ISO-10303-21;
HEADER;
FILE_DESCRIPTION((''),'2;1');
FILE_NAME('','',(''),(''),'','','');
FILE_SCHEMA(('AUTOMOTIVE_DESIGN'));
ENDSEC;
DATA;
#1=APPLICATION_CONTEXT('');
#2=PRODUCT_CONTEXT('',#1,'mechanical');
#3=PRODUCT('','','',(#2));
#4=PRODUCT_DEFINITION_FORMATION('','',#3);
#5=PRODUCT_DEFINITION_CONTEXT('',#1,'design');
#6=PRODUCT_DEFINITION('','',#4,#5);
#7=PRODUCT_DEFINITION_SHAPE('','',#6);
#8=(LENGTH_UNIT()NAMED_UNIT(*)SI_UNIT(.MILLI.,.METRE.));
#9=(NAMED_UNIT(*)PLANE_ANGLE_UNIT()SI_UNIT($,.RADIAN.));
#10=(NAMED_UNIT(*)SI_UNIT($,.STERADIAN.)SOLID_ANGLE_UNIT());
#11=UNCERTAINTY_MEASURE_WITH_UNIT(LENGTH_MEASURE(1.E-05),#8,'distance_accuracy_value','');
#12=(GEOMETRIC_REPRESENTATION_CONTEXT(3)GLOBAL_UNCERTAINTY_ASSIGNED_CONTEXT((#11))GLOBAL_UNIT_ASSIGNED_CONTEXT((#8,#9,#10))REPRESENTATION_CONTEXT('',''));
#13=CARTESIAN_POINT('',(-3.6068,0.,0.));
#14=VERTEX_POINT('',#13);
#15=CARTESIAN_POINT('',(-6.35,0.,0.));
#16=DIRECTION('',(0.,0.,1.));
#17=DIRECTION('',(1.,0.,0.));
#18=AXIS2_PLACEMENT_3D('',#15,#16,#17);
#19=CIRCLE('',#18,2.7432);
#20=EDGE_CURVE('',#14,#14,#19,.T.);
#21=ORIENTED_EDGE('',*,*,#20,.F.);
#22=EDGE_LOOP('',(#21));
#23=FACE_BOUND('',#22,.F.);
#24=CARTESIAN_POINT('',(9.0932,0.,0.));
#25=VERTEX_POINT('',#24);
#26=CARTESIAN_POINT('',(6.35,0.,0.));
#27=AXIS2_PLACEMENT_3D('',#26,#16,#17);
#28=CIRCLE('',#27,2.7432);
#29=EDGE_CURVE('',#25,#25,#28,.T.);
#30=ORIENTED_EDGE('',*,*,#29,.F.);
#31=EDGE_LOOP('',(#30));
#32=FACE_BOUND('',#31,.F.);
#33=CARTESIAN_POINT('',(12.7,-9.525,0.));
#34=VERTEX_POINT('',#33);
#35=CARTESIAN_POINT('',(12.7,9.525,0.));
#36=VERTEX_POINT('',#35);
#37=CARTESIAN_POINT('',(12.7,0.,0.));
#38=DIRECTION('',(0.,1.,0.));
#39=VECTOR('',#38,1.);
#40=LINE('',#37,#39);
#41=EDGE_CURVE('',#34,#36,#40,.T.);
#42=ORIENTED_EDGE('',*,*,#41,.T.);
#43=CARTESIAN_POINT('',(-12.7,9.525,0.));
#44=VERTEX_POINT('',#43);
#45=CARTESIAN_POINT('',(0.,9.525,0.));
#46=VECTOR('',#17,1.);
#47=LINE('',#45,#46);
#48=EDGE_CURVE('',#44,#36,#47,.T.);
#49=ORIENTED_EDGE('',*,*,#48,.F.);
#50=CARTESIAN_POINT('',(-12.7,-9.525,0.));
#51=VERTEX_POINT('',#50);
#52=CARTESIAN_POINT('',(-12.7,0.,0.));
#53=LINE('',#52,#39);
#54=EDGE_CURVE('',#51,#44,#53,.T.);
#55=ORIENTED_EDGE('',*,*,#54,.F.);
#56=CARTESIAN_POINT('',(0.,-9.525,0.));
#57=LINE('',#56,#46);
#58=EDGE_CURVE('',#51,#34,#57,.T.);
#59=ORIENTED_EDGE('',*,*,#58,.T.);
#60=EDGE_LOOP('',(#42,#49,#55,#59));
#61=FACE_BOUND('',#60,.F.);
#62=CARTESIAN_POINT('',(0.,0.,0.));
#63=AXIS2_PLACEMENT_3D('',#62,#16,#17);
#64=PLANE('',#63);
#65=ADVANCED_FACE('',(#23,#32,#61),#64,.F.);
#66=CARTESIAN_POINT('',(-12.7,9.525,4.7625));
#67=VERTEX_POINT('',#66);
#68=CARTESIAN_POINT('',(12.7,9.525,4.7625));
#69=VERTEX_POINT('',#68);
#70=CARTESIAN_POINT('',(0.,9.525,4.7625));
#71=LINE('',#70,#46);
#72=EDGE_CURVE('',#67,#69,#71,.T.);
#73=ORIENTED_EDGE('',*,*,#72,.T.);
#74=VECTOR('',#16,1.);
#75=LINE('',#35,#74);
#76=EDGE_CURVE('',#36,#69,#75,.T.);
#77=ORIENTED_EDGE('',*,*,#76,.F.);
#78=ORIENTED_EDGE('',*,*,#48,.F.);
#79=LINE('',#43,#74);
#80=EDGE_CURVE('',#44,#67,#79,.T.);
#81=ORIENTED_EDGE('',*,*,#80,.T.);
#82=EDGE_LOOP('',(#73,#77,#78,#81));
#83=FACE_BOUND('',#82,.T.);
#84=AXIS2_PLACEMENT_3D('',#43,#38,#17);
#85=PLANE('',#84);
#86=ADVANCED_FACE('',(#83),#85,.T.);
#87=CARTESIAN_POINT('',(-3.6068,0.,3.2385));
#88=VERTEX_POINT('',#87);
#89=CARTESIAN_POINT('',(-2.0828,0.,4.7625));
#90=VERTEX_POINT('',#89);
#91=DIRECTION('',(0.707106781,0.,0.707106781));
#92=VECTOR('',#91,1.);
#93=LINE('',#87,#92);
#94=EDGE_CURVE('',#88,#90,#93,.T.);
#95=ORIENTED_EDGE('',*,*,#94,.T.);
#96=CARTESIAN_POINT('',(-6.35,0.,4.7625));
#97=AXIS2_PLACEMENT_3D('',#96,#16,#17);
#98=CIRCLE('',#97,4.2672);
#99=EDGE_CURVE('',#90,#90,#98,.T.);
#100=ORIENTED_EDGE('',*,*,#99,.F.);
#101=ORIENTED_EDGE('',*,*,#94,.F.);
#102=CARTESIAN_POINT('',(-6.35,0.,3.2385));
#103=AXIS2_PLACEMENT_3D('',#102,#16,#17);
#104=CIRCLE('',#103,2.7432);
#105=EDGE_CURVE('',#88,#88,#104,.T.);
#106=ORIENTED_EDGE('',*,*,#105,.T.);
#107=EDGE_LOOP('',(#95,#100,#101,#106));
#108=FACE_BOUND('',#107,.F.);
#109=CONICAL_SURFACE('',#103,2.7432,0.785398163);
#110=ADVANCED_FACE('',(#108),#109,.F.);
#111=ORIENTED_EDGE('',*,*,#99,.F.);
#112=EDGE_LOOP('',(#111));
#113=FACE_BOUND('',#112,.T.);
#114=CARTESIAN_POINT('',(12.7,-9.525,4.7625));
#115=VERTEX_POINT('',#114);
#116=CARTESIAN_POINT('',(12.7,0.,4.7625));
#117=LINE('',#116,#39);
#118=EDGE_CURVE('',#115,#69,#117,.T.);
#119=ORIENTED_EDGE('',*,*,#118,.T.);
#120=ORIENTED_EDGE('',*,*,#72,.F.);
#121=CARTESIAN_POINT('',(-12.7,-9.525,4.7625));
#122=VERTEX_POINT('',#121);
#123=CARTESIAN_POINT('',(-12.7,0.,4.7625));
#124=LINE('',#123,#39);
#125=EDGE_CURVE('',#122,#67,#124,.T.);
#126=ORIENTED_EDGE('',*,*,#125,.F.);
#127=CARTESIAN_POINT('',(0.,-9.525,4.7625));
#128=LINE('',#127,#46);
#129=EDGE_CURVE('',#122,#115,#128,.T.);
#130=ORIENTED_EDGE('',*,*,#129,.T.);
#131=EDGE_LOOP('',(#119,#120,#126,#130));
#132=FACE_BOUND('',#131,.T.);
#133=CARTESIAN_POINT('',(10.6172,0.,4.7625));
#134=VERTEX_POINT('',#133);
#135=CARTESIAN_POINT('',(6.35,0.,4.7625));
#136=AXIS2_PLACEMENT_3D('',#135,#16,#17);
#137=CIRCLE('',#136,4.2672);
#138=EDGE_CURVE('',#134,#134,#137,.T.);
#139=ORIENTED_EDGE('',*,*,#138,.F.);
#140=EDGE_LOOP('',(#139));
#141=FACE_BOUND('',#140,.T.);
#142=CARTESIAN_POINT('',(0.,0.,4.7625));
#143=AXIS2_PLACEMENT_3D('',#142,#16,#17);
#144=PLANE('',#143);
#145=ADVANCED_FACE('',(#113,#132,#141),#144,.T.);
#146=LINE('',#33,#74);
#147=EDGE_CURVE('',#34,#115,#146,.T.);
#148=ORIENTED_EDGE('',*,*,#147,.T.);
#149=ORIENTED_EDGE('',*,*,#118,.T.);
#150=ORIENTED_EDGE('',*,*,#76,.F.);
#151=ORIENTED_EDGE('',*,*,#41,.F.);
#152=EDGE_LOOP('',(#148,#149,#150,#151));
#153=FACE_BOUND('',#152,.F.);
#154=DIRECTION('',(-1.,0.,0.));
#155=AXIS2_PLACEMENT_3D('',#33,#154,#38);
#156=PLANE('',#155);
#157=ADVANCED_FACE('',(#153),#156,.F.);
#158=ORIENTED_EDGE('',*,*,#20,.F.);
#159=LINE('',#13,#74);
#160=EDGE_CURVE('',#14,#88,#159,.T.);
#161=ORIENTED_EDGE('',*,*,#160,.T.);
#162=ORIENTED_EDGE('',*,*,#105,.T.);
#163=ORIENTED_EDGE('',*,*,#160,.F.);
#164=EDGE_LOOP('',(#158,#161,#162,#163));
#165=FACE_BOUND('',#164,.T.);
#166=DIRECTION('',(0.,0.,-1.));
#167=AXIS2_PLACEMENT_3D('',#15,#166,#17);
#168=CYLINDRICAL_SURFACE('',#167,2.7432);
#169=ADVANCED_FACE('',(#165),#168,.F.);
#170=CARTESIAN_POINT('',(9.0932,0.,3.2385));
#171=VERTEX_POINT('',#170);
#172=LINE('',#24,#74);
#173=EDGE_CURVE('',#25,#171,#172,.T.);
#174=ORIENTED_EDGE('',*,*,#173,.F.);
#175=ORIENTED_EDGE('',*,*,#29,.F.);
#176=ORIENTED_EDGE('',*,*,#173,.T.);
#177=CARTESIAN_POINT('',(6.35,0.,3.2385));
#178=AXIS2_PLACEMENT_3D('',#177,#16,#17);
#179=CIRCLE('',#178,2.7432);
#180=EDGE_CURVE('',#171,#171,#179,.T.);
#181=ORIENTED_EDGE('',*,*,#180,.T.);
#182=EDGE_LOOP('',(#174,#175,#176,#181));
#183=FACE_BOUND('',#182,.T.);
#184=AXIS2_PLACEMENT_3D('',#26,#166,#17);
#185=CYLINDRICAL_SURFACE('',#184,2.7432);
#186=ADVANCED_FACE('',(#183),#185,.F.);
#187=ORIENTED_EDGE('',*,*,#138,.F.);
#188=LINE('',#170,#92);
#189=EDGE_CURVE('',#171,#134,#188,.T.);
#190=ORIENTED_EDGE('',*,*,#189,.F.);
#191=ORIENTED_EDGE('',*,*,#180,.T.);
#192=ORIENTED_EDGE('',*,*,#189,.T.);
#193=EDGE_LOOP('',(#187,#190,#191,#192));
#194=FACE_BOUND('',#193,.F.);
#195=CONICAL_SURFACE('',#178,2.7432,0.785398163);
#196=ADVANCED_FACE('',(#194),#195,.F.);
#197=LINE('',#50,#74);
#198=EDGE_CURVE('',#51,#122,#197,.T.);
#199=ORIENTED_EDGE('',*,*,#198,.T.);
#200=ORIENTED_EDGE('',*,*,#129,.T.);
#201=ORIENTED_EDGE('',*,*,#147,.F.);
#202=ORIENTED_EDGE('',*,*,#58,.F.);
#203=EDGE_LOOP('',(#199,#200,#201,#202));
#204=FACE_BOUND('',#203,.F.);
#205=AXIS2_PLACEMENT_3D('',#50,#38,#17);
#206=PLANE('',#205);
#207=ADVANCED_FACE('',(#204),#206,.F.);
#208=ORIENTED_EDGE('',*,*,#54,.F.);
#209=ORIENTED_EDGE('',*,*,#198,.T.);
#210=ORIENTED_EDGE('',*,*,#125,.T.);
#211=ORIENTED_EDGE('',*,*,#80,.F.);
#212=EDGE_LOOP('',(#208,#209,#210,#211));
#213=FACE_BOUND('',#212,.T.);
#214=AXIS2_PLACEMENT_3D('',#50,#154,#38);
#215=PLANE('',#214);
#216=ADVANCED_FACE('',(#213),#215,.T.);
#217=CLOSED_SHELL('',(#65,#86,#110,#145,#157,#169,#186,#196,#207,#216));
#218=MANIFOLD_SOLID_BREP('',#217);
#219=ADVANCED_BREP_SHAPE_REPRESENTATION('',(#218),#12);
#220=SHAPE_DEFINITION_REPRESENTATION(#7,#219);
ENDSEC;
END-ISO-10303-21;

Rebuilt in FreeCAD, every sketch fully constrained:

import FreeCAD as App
import Part
import Sketcher
Q = App.Units.Quantity


def edges_at(feature, points):
    """Names of the edges that pass closest to the given points."""
    edges = feature.Shape.Edges
    near = lambda p: min(range(len(edges)), key=lambda i: edges[i].distToShape(Part.Vertex(*p))[0])
    return sorted({f"Edge{near(p) + 1}" for p in points})


def add_polygon(sketch, points):
    """Adds a closed chain of lines whose ends are joined by coincident constraints."""
    first, n = sketch.GeometryCount, len(points)
    for a, b in zip(points, points[1:] + points[:1]):
        sketch.addGeometry(Part.LineSegment(App.Vector(*a, 0), App.Vector(*b, 0)), False)
    for i in range(n):
        sketch.addConstraint(Sketcher.Constraint("Coincident", first + i, 2, first + (i + 1) % n, 1))

doc = App.newDocument("Part")
body = doc.addObject("PartDesign::Body", "Body")

# Sketch on XY plane
sketch1 = body.newObject("Sketcher::SketchObject", "Sketch")
sketch1.AttachmentSupport = (doc.getObject("XY_Plane"), [""])
sketch1.MapMode = "FlatFace"
add_polygon(sketch1, [(-12.7, 9.5), (-12.7, -9.5), (12.7, -9.5), (12.7, 9.5)])  # lines 0-3
sketch1.addGeometry(Part.Circle(App.Vector(-6.3, 0, 0), App.Vector(0, 0, 1), 2.7), False)  # 4
sketch1.addGeometry(Part.Circle(App.Vector(6.3, 0, 0), App.Vector(0, 0, 1), 2.7), False)  # 5
sketch1.addConstraint(Sketcher.Constraint("Vertical", 0))
sketch1.addConstraint(Sketcher.Constraint("Horizontal", 1))
sketch1.addConstraint(Sketcher.Constraint("Vertical", 2))
sketch1.addConstraint(Sketcher.Constraint("Horizontal", 3))
sketch1.addConstraint(Sketcher.Constraint("Equal", 4, 5))
sketch1.addConstraint(Sketcher.Constraint("Symmetric", 4, 3, 5, 3, -1, 1))
sketch1.addConstraint(Sketcher.Constraint("Symmetric", 0, 2, 2, 2, -1, 1))
sketch1.addConstraint(Sketcher.Constraint("PointOnObject", 4, 3, -1))
sketch1.addConstraint(Sketcher.Constraint("DistanceX", 1, 1, 1, 2, Q("1 in")))
sketch1.addConstraint(Sketcher.Constraint("Diameter", 4, Q("0.216 in")))
sketch1.addConstraint(Sketcher.Constraint("DistanceY", 0, 2, 0, 1, Q("0.75 in")))
sketch1.addConstraint(Sketcher.Constraint("DistanceX", 4, 3, 5, 3, Q("0.5 in")))
pad1 = body.newObject("PartDesign::Pad", "Pad")
pad1.Profile = sketch1
pad1.Length = Q("0.1875 in")
doc.recompute()

chamfer = body.newObject("PartDesign::Chamfer", "Chamfer")
chamfer.Base = (pad1, edges_at(pad1, [(-9.093, 0, 4.763), (3.607, 0, 4.763)]))
chamfer.Size = Q("0.06 in")

doc.recompute()
